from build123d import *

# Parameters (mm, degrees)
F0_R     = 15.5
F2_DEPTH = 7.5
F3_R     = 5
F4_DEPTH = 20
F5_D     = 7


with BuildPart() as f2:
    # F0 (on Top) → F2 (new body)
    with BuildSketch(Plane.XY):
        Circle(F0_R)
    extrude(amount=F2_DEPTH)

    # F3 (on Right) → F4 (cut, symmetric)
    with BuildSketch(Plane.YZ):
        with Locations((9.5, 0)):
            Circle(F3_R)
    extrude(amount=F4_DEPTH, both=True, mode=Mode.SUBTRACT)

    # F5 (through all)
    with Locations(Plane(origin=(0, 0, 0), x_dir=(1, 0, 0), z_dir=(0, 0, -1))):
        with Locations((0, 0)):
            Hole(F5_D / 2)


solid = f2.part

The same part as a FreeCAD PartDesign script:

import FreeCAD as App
import Part
import Sketcher
from FreeCAD import Vector

doc = App.newDocument("Part")
body = doc.addObject("PartDesign::Body", "Body")

sketch1 = doc.addObject("Sketcher::SketchObject", "Sketch")
body.addObject(sketch1)
sketch1.AttachmentSupport = (doc.XY_Plane, [""])
sketch1.MapMode = "FlatFace"
sketch1.addGeometry(Part.Circle(Vector(0, 0, 0), Vector(0, 0, 1), 16), False)
sketch1.addConstraint([
    Sketcher.Constraint("Coincident", 0, 3, -1, 1),
    Sketcher.Constraint("Diameter", 0, 31.0),
])
pad1 = doc.addObject("PartDesign::Pad", "Pad")
body.addObject(pad1)
pad1.Profile = sketch1
pad1.Length = 7.5

sketch2 = doc.addObject("Sketcher::SketchObject", "Sketch001")
body.addObject(sketch2)
sketch2.AttachmentSupport = (doc.YZ_Plane, [""])
sketch2.MapMode = "FlatFace"
sketch2.addGeometry(Part.Circle(Vector(10, 0, 0), Vector(0, 0, 1), 5), False)
sketch2.addConstraint([
    Sketcher.Constraint("PointOnObject", 0, 3, -1),
    Sketcher.Constraint("Diameter", 0, 10.0),
    Sketcher.Constraint("DistanceX", -1, 1, 0, 3, 9.5),
])
pocket1 = doc.addObject("PartDesign::Pocket", "Pocket")
body.addObject(pocket1)
pocket1.Profile = sketch2
pocket1.Length = 40
pocket1.Midplane = True

sketch3 = doc.addObject("Sketcher::SketchObject", "Sketch002")
body.addObject(sketch3)
sketch3.AttachmentSupport = (doc.XY_Plane, [""])
sketch3.MapMode = "FlatFace"
sketch3.addGeometry(Part.Circle(Vector(0, 0, 0), Vector(0, 0, 1), 3.5), False)
sketch3.addConstraint([
    Sketcher.Constraint("Coincident", 0, 3, -1, 1),
    Sketcher.Constraint("Diameter", 0, 7.0),
])
doc.recompute()
hole = doc.addObject("PartDesign::Hole", "Hole")
body.addObject(hole)
hole.Profile = sketch3
hole.ThreadType = "None"
hole.Diameter = 7
hole.DepthType = "ThroughAll"
hole.Reversed = True

doc.recompute()
